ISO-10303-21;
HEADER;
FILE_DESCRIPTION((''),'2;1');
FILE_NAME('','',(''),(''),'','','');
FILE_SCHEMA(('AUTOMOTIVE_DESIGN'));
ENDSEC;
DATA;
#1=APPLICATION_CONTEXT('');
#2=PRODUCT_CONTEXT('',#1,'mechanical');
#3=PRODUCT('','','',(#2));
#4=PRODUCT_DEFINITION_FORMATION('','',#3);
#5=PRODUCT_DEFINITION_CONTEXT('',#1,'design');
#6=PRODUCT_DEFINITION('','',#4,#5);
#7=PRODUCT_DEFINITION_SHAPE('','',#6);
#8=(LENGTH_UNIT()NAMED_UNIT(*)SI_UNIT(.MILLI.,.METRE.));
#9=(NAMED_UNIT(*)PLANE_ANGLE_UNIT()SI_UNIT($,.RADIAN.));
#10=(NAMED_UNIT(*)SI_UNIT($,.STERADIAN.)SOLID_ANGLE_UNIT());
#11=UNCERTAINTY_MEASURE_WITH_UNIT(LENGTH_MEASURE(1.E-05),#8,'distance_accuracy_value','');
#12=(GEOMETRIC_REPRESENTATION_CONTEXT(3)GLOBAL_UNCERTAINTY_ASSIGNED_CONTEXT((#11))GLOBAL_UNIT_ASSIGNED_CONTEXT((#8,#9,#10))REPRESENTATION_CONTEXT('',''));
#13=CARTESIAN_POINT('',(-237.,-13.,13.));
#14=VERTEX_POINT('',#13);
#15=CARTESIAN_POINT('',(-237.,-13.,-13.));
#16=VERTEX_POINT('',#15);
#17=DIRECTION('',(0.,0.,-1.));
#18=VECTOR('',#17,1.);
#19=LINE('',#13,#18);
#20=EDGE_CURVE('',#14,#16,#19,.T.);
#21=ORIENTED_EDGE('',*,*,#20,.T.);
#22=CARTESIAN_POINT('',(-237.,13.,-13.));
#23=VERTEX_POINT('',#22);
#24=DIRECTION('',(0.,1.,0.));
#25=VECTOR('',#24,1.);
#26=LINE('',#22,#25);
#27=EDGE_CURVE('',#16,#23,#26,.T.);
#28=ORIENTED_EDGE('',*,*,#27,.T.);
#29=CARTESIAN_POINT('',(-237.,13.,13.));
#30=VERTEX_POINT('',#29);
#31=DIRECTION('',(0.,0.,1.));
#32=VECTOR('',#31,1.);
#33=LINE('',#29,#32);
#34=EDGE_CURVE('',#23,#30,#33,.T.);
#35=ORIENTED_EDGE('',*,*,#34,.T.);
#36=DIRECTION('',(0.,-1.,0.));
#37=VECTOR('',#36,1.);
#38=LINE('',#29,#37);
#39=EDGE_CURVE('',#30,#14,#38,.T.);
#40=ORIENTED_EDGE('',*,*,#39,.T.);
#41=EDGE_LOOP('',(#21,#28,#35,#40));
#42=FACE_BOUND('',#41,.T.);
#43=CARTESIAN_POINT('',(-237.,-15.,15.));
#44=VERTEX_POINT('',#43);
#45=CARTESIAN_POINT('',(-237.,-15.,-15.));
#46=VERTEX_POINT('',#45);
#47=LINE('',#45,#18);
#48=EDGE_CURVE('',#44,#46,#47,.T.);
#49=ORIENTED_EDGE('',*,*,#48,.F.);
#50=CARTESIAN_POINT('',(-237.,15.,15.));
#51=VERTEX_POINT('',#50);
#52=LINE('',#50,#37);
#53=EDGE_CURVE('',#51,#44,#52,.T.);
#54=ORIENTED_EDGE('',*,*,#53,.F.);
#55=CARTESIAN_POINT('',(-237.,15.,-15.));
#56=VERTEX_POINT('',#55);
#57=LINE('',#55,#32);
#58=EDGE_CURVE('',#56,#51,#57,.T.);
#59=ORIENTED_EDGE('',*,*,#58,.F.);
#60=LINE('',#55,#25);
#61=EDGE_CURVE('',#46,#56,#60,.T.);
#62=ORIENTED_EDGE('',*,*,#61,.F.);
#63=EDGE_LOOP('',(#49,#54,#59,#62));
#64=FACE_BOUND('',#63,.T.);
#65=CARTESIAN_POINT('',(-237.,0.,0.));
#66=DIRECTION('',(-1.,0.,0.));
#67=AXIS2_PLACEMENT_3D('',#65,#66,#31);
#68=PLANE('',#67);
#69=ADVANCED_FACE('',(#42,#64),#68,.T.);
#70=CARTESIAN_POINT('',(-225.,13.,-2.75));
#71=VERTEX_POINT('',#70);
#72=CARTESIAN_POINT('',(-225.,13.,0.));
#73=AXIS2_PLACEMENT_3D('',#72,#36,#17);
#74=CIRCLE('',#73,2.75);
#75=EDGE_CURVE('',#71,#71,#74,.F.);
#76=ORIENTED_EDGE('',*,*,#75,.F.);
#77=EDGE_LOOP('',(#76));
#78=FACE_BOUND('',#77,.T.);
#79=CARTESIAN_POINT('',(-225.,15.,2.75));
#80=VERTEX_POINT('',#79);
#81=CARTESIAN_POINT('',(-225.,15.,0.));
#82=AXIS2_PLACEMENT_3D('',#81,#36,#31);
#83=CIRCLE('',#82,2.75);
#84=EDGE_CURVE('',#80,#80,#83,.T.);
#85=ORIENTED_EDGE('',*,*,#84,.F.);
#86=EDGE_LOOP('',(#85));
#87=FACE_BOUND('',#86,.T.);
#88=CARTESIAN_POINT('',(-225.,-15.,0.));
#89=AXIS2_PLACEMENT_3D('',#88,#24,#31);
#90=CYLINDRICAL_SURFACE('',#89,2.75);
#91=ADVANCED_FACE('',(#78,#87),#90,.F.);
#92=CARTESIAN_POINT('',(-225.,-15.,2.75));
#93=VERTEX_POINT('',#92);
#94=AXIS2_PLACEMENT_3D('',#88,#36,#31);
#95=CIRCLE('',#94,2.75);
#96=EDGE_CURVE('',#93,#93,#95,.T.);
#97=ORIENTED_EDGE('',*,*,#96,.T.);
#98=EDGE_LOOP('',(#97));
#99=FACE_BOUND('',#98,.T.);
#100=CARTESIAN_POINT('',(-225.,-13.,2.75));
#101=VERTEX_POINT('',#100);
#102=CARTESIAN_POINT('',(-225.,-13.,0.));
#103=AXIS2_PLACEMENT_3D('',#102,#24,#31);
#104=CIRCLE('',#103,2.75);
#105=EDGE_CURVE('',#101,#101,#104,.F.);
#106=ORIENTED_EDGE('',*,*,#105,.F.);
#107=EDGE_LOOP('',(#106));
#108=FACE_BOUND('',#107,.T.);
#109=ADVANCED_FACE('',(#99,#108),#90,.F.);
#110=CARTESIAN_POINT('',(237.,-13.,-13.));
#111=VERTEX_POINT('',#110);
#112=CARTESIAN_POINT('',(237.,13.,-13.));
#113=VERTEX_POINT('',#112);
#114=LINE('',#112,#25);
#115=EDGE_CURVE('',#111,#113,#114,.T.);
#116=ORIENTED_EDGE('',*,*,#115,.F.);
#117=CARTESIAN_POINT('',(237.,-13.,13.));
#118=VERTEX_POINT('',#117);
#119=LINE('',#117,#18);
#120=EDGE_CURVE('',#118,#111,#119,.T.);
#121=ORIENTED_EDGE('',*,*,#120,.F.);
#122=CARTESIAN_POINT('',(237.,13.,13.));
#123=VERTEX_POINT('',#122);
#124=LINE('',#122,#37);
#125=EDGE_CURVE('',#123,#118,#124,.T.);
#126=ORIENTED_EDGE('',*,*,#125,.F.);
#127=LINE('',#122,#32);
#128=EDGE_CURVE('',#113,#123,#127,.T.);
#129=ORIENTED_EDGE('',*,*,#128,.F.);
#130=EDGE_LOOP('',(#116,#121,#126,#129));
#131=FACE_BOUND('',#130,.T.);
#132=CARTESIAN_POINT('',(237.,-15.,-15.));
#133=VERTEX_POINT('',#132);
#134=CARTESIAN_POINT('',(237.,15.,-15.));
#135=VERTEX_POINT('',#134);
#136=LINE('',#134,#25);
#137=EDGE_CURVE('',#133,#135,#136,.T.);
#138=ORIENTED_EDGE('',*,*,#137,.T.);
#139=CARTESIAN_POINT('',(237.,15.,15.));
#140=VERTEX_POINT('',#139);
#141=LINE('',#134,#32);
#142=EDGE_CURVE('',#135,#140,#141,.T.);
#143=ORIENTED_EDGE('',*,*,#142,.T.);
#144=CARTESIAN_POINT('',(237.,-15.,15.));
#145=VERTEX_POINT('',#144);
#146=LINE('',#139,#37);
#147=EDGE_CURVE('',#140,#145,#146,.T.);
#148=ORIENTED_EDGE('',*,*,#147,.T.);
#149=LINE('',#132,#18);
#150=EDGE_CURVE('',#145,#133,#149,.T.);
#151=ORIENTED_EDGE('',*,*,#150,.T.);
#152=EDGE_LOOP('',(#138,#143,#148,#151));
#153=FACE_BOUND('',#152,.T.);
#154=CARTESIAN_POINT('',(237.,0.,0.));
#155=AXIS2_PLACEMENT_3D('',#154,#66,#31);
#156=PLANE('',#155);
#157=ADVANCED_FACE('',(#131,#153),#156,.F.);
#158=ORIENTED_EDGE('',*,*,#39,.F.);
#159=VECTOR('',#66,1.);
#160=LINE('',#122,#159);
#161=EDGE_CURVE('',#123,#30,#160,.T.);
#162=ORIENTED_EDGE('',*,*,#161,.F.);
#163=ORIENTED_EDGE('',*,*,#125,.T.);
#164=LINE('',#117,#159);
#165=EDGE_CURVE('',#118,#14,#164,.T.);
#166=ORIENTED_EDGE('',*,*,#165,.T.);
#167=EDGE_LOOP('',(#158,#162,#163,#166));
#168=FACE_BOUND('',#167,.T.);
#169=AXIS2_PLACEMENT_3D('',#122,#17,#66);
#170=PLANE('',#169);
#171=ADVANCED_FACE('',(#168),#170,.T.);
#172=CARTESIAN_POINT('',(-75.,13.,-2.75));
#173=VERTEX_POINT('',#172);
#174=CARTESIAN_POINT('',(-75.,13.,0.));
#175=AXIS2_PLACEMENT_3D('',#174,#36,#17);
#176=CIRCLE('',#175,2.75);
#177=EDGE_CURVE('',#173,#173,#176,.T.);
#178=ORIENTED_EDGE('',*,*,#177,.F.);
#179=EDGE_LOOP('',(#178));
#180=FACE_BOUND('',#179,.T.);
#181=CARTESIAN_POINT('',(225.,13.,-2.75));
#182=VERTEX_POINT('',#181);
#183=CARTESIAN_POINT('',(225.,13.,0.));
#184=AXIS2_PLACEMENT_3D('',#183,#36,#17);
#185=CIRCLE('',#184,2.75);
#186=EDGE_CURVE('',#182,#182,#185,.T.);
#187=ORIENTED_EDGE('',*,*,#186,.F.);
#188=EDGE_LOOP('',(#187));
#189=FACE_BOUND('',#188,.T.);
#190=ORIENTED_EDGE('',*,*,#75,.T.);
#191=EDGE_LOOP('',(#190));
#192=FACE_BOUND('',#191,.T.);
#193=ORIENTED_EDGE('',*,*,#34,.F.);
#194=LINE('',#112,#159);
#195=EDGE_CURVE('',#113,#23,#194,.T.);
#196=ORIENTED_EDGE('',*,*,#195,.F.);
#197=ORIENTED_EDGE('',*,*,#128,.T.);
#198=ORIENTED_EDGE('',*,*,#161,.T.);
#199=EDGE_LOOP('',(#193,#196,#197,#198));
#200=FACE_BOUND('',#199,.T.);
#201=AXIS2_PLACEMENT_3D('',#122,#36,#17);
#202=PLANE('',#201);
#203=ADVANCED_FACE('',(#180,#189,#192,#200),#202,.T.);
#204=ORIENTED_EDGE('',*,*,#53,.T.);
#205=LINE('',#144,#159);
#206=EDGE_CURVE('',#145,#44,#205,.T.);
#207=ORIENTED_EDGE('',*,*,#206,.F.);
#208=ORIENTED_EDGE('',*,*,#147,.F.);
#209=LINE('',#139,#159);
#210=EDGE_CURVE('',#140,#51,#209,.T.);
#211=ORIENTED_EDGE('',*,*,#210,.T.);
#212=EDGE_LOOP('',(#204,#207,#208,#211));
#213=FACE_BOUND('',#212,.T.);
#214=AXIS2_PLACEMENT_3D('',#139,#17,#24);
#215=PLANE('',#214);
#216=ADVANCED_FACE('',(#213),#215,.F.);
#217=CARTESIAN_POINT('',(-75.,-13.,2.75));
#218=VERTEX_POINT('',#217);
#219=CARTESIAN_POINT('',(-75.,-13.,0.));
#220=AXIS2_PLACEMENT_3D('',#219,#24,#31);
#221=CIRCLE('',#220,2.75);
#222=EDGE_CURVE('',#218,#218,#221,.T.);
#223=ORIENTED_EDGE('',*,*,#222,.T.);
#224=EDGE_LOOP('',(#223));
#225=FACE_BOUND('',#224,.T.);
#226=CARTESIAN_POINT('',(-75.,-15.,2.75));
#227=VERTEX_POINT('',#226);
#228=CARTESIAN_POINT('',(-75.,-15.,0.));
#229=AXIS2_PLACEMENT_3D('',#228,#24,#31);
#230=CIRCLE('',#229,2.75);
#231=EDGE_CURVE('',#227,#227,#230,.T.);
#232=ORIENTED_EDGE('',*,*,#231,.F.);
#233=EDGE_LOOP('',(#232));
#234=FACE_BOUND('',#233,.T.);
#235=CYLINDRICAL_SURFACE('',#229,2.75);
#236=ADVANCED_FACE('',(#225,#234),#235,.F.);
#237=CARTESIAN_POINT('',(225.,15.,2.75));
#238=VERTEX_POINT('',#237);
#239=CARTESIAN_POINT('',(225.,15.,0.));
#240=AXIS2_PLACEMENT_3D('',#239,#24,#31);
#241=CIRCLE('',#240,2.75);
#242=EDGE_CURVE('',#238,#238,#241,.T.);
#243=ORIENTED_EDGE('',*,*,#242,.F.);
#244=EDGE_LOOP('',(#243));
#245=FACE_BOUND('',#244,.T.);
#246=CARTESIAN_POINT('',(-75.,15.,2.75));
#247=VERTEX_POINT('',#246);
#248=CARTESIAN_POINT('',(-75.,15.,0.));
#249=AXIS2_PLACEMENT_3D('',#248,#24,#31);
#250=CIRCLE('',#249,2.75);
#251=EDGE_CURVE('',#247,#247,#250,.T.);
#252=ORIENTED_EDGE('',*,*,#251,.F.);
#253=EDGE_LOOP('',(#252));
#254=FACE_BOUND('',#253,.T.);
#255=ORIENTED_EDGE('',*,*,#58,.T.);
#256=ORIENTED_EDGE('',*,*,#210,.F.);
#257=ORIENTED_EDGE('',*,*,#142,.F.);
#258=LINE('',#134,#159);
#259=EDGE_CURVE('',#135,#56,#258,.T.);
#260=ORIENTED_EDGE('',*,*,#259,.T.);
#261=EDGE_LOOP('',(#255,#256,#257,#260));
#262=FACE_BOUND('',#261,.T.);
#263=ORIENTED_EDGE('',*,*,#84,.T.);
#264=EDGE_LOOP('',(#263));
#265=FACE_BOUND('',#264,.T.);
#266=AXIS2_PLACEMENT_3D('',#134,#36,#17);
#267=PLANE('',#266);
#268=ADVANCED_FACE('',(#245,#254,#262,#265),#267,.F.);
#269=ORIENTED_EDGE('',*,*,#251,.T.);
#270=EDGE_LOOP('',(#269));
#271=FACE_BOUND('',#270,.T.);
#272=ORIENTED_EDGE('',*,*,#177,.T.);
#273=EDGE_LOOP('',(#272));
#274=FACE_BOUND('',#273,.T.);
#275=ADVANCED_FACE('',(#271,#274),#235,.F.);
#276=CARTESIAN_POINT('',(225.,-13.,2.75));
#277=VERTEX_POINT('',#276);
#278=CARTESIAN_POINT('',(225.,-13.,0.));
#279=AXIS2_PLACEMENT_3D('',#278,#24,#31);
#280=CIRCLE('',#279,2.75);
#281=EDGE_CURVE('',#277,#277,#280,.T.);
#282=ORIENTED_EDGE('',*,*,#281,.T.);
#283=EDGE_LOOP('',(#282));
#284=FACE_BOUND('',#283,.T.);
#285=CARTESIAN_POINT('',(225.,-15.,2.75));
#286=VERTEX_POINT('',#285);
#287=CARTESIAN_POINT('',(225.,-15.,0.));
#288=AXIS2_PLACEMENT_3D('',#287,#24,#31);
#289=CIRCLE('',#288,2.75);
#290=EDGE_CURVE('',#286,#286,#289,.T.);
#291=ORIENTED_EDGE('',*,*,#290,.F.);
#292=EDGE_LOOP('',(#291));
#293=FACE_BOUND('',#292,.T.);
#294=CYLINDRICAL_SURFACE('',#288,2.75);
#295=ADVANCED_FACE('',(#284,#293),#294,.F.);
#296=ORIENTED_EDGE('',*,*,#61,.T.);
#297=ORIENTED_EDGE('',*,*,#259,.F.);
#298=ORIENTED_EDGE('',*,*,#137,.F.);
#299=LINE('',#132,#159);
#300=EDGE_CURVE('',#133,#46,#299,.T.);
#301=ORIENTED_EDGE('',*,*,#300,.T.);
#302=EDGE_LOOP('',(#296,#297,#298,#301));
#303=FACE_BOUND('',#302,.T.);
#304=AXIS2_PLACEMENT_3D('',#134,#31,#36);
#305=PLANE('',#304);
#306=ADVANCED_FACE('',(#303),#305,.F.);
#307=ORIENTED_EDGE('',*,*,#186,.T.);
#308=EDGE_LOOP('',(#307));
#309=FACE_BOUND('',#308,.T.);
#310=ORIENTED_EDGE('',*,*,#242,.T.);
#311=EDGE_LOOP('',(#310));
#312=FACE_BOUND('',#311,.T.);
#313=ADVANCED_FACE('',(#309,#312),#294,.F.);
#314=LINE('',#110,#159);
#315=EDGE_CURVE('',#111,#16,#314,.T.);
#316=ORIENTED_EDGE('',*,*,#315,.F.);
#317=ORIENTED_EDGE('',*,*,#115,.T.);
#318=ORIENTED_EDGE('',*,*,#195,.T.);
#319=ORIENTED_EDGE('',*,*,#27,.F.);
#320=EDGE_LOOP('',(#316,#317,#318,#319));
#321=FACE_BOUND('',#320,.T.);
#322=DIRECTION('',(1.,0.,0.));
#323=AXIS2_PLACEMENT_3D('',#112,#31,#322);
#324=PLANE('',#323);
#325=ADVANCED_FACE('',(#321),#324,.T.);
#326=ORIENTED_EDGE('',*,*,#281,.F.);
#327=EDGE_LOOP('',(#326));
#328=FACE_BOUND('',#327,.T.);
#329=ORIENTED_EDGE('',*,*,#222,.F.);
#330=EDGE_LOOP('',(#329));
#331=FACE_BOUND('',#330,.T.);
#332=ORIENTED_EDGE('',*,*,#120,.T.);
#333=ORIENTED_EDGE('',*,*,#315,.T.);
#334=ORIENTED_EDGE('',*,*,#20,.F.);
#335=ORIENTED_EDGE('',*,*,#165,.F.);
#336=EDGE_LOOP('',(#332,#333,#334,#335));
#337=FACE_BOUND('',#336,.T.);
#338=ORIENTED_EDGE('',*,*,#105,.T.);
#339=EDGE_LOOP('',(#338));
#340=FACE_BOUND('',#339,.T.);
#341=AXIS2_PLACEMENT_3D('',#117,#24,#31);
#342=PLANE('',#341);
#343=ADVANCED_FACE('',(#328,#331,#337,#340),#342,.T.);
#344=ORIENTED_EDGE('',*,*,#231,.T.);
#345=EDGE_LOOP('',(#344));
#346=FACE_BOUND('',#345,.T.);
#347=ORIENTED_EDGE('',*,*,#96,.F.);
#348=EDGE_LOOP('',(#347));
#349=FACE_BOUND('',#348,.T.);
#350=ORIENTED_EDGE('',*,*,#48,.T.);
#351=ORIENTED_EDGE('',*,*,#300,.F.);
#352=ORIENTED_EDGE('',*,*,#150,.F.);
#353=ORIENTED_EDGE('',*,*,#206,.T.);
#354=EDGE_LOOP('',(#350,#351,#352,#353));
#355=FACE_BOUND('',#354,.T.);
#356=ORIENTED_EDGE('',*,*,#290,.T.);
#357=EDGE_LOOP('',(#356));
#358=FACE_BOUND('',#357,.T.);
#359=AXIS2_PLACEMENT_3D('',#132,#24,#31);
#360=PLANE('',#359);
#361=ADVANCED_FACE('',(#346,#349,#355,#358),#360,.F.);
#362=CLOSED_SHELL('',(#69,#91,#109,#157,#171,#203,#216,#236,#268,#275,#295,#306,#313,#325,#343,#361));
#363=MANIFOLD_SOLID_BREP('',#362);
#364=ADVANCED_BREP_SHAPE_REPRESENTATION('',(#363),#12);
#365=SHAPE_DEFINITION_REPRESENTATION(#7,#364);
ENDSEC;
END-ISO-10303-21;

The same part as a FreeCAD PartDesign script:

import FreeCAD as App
import Part
import Sketcher
from FreeCAD import Vector
Q = App.Units.Quantity


def add_polygon(sketch, points):
    """Adds a closed chain of lines whose ends are joined by coincident constraints."""
    first, n = sketch.GeometryCount, len(points)
    for a, b in zip(points, points[1:] + points[:1]):
        sketch.addGeometry(Part.LineSegment(App.Vector(*a, 0), App.Vector(*b, 0)), False)
    for i in range(n):
        sketch.addConstraint(Sketcher.Constraint("Coincident", first + i, 2, first + (i + 1) % n, 1))

doc = App.newDocument("Part")
body = doc.addObject("PartDesign::Body", "Body")

# Sketch on YZ plane
sketch1 = body.newObject("Sketcher::SketchObject", "Sketch")
sketch1.AttachmentSupport = (doc.getObject("YZ_Plane"), [""])
sketch1.MapMode = "FlatFace"
add_polygon(sketch1, [(15, 15), (-15, 15), (-15, -15), (15, -15)])  # lines 0-3
add_polygon(sketch1, [(-13, -13), (-13, 13), (13, 13), (13, -13)])  # lines 4-7
sketch1.addConstraint([
    Sketcher.Constraint("Horizontal", 0),
    Sketcher.Constraint("Vertical", 1),
    Sketcher.Constraint("Horizontal", 2),
    Sketcher.Constraint("Vertical", 3),
    Sketcher.Constraint("Vertical", 4),
    Sketcher.Constraint("Horizontal", 5),
    Sketcher.Constraint("Vertical", 6),
    Sketcher.Constraint("Horizontal", 7),
    Sketcher.Constraint("Symmetric", 0, 2, 2, 2, -1, 1),
    Sketcher.Constraint("Symmetric", 4, 2, 6, 2, -1, 1),
    Sketcher.Constraint("Equal", 2, 1),
    Sketcher.Constraint("Equal", 7, 4),
    Sketcher.Constraint("DistanceX", 0, 2, 0, 1, Q("30 mm")),
    Sketcher.Constraint("DistanceX", 5, 1, 5, 2, Q("26 mm")),
])
pad1 = body.newObject("PartDesign::Pad", "Pad")
pad1.Profile = sketch1
pad1.Length = 474
pad1.Midplane = True

# Sketch on XZ plane
sketch2 = body.newObject("Sketcher::SketchObject", "Sketch001")
sketch2.AttachmentSupport = (doc.getObject("XZ_Plane"), [""])
sketch2.MapMode = "FlatFace"
sketch2.addGeometry(Part.Circle(Vector(225, 0, 0), Vector(0, 0, 1), 2.75), False)
sketch2.addConstraint([
    Sketcher.Constraint("PointOnObject", 0, 3, -1),
    Sketcher.Constraint("Diameter", 0, Q("5.5 mm")),
    Sketcher.Constraint("DistanceX", -1, 1, 0, 3, Q("225 mm")),
])
pocket1 = body.newObject("PartDesign::Pocket", "Pocket")
pocket1.Profile = sketch2
pocket1.Length = 477.894946
pocket1.Midplane = True
doc.recompute()

mirrored = body.newObject("PartDesign::Mirrored", "Mirrored")
mirrored.Originals = [pocket1]
mirrored.MirrorPlane = (doc.getObject("YZ_Plane"), [""])
body.Tip = mirrored

# Sketch on XZ plane
sketch3 = body.newObject("Sketcher::SketchObject", "Sketch002")
sketch3.AttachmentSupport = (doc.getObject("XZ_Plane"), [""])
sketch3.MapMode = "FlatFace"
sketch3.addGeometry(Part.Circle(Vector(-75, 0, 0), Vector(0, 0, 1), 2.75), False)
sketch3.addConstraint([
    Sketcher.Constraint("PointOnObject", 0, 3, -1),
    Sketcher.Constraint("Diameter", 0, Q("5.5 mm")),
    Sketcher.Constraint("DistanceX", 0, 3, -1, 1, Q("75 mm")),
])
pocket2 = body.newObject("PartDesign::Pocket", "Pocket001")
pocket2.Profile = sketch3
pocket2.Type = "ThroughAll"
pocket2.Midplane = True

doc.recompute()
